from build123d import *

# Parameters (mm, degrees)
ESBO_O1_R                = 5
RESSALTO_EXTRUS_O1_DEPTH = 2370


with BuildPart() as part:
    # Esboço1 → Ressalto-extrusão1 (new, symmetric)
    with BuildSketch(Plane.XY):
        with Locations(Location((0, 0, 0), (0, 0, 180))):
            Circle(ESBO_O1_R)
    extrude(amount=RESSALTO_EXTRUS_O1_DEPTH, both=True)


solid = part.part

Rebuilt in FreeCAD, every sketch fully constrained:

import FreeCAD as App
import Part
import Sketcher
from FreeCAD import Vector
Q = App.Units.Quantity

doc = App.newDocument("Part")
params = doc.addObject("Spreadsheet::Sheet", "Params")
for row, (alias, value) in enumerate([
    ("sketch1_diameter", "10 mm"),
    ("pad1_length", "4740 mm"),
], start=1):
    params.set(f"A{row}", alias)
    params.set(f"B{row}", "=" + value)
    params.setAlias(f"B{row}", alias)

body = doc.addObject("PartDesign::Body", "Body")

sketch1 = body.newObject("Sketcher::SketchObject", "Sketch")
sketch1.AttachmentSupport = (doc.getObject("XY_Plane"), [""])
sketch1.MapMode = "FlatFace"
sketch1.addGeometry(Part.Circle(Vector(0, 0, 0), Vector(0, 0, 1), 5), False)
sketch1.addConstraint([
    Sketcher.Constraint("Coincident", 0, 3, -1, 1),
    Sketcher.Constraint("Diameter", 0, Q("10 mm")),
])
sketch1.setExpression("Constraints[1]", "Params.sketch1_diameter")
pad1 = body.newObject("PartDesign::Pad", "Pad")
pad1.Profile = sketch1
pad1.setExpression("Length", "Params.pad1_length")
pad1.Midplane = True

doc.recompute()
